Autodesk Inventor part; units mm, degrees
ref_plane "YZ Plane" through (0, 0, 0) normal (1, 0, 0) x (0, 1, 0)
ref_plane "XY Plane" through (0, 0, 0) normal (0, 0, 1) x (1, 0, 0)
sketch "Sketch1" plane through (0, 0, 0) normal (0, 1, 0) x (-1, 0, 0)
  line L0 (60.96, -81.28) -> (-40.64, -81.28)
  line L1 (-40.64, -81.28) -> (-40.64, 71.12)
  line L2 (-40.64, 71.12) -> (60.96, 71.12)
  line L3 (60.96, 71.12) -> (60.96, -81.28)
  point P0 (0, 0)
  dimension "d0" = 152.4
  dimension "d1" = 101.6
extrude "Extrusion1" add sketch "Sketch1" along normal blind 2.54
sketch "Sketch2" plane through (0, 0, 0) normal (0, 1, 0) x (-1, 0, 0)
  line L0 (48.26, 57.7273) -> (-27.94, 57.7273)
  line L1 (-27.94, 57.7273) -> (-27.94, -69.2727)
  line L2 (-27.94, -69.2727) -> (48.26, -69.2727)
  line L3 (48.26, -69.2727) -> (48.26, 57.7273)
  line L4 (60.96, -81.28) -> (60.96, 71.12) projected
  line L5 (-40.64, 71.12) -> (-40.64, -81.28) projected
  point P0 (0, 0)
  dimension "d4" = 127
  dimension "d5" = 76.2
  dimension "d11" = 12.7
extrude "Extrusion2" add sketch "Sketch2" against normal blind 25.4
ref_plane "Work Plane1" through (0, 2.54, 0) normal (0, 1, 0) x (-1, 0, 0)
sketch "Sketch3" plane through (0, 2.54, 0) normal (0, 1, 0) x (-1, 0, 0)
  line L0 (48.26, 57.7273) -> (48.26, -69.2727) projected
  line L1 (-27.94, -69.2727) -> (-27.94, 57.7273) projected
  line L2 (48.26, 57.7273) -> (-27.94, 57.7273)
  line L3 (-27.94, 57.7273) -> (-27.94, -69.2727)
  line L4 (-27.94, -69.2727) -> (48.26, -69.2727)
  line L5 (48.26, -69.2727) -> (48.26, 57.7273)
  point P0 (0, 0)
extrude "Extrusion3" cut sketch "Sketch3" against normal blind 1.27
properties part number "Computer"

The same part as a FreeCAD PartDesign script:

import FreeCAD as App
import Part
import Sketcher

V = App.Vector
Q = App.Units.Quantity


def add_polygon(sketch, points):
    """Adds a closed chain of lines whose ends are joined by coincident constraints."""
    first, n = sketch.GeometryCount, len(points)
    for a, b in zip(points, points[1:] + points[:1]):
        sketch.addGeometry(Part.LineSegment(App.Vector(*a, 0), App.Vector(*b, 0)), False)
    for i in range(n):
        sketch.addConstraint(Sketcher.Constraint("Coincident", first + i, 2, first + (i + 1) % n, 1))

doc = App.newDocument("Part")
body = doc.addObject("PartDesign::Body", "Body")

# Sketch on XZ plane
sketch1 = body.newObject("Sketcher::SketchObject", "Sketch")
sketch1.AttachmentSupport = (doc.getObject("XZ_Plane"), [""])
sketch1.MapMode = "FlatFace"
add_polygon(sketch1, [(41, -81), (-61, -81), (-61, 71), (41, 71)])  # lines 0-3
sketch1.addConstraint(Sketcher.Constraint("Horizontal", 0))
sketch1.addConstraint(Sketcher.Constraint("Vertical", 1))
sketch1.addConstraint(Sketcher.Constraint("Horizontal", 2))
sketch1.addConstraint(Sketcher.Constraint("Vertical", 3))
sketch1.addConstraint(Sketcher.Constraint("DistanceX", 0, 2, 0, 1, Q("4 in")))
sketch1.addConstraint(Sketcher.Constraint("DistanceY", 1, 1, 1, 2, Q("6 in")))
sketch1.addConstraint(Sketcher.Constraint("DistanceX", 0, 2, -1, 1, Q("2.4 in")))
sketch1.addConstraint(Sketcher.Constraint("DistanceY", 0, 2, -1, 1, Q("3.2 in")))
pad1 = body.newObject("PartDesign::Pad", "Pad")
pad1.Profile = sketch1
pad1.Length = Q("0.1 in")
pad1.Reversed = True

# Sketch on XZ plane
sketch2 = body.newObject("Sketcher::SketchObject", "Sketch001")
sketch2.AttachmentSupport = (doc.getObject("XZ_Plane"), [""])
sketch2.MapMode = "FlatFace"
add_polygon(sketch2, [(-48, -69), (-48, 58), (28, 58), (28, -69)])  # lines 0-3
sketch2.addConstraint(Sketcher.Constraint("Vertical", 0))
sketch2.addConstraint(Sketcher.Constraint("Horizontal", 1))
sketch2.addConstraint(Sketcher.Constraint("Vertical", 2))
sketch2.addConstraint(Sketcher.Constraint("Horizontal", 3))
sketch2.addConstraint(Sketcher.Constraint("DistanceX", 1, 1, 1, 2, Q("3 in")))
sketch2.addConstraint(Sketcher.Constraint("DistanceY", 0, 1, 0, 2, Q("5 in")))
sketch2.addConstraint(Sketcher.Constraint("DistanceX", 0, 2, -1, 1, Q("1.9 in")))
sketch2.addConstraint(Sketcher.Constraint("DistanceY", -1, 1, 0, 2, Q("57.7273 mm")))
pad2 = body.newObject("PartDesign::Pad", "Pad001")
pad2.Profile = sketch2
pad2.Length = Q("1 in")

# Sketch on XZ plane
sketch3 = body.newObject("Sketcher::SketchObject", "Sketch002")
sketch3.AttachmentSupport = (doc.getObject("XZ_Plane"), [""])
sketch3.MapMode = "FlatFace"
sketch3.AttachmentOffset = App.Placement(V(0, 0, -0.1 * 25.4), App.Rotation())
add_polygon(sketch3, [(-48, -69), (-48, 58), (28, 58), (28, -69)])  # lines 0-3
sketch3.addConstraint(Sketcher.Constraint("Vertical", 0))
sketch3.addConstraint(Sketcher.Constraint("Horizontal", 1))
sketch3.addConstraint(Sketcher.Constraint("Vertical", 2))
sketch3.addConstraint(Sketcher.Constraint("Horizontal", 3))
sketch3.addConstraint(Sketcher.Constraint("DistanceX", 1, 1, 1, 2, Q("3 in")))
sketch3.addConstraint(Sketcher.Constraint("DistanceY", 0, 1, 0, 2, Q("5 in")))
sketch3.addConstraint(Sketcher.Constraint("DistanceX", 0, 2, -1, 1, Q("1.9 in")))
sketch3.addConstraint(Sketcher.Constraint("DistanceY", -1, 1, 0, 2, Q("57.7273 mm")))
pocket1 = body.newObject("PartDesign::Pocket", "Pocket")
pocket1.Profile = sketch3
pocket1.Length = Q("0.05 in")
pocket1.Reversed = True

doc.recompute()
